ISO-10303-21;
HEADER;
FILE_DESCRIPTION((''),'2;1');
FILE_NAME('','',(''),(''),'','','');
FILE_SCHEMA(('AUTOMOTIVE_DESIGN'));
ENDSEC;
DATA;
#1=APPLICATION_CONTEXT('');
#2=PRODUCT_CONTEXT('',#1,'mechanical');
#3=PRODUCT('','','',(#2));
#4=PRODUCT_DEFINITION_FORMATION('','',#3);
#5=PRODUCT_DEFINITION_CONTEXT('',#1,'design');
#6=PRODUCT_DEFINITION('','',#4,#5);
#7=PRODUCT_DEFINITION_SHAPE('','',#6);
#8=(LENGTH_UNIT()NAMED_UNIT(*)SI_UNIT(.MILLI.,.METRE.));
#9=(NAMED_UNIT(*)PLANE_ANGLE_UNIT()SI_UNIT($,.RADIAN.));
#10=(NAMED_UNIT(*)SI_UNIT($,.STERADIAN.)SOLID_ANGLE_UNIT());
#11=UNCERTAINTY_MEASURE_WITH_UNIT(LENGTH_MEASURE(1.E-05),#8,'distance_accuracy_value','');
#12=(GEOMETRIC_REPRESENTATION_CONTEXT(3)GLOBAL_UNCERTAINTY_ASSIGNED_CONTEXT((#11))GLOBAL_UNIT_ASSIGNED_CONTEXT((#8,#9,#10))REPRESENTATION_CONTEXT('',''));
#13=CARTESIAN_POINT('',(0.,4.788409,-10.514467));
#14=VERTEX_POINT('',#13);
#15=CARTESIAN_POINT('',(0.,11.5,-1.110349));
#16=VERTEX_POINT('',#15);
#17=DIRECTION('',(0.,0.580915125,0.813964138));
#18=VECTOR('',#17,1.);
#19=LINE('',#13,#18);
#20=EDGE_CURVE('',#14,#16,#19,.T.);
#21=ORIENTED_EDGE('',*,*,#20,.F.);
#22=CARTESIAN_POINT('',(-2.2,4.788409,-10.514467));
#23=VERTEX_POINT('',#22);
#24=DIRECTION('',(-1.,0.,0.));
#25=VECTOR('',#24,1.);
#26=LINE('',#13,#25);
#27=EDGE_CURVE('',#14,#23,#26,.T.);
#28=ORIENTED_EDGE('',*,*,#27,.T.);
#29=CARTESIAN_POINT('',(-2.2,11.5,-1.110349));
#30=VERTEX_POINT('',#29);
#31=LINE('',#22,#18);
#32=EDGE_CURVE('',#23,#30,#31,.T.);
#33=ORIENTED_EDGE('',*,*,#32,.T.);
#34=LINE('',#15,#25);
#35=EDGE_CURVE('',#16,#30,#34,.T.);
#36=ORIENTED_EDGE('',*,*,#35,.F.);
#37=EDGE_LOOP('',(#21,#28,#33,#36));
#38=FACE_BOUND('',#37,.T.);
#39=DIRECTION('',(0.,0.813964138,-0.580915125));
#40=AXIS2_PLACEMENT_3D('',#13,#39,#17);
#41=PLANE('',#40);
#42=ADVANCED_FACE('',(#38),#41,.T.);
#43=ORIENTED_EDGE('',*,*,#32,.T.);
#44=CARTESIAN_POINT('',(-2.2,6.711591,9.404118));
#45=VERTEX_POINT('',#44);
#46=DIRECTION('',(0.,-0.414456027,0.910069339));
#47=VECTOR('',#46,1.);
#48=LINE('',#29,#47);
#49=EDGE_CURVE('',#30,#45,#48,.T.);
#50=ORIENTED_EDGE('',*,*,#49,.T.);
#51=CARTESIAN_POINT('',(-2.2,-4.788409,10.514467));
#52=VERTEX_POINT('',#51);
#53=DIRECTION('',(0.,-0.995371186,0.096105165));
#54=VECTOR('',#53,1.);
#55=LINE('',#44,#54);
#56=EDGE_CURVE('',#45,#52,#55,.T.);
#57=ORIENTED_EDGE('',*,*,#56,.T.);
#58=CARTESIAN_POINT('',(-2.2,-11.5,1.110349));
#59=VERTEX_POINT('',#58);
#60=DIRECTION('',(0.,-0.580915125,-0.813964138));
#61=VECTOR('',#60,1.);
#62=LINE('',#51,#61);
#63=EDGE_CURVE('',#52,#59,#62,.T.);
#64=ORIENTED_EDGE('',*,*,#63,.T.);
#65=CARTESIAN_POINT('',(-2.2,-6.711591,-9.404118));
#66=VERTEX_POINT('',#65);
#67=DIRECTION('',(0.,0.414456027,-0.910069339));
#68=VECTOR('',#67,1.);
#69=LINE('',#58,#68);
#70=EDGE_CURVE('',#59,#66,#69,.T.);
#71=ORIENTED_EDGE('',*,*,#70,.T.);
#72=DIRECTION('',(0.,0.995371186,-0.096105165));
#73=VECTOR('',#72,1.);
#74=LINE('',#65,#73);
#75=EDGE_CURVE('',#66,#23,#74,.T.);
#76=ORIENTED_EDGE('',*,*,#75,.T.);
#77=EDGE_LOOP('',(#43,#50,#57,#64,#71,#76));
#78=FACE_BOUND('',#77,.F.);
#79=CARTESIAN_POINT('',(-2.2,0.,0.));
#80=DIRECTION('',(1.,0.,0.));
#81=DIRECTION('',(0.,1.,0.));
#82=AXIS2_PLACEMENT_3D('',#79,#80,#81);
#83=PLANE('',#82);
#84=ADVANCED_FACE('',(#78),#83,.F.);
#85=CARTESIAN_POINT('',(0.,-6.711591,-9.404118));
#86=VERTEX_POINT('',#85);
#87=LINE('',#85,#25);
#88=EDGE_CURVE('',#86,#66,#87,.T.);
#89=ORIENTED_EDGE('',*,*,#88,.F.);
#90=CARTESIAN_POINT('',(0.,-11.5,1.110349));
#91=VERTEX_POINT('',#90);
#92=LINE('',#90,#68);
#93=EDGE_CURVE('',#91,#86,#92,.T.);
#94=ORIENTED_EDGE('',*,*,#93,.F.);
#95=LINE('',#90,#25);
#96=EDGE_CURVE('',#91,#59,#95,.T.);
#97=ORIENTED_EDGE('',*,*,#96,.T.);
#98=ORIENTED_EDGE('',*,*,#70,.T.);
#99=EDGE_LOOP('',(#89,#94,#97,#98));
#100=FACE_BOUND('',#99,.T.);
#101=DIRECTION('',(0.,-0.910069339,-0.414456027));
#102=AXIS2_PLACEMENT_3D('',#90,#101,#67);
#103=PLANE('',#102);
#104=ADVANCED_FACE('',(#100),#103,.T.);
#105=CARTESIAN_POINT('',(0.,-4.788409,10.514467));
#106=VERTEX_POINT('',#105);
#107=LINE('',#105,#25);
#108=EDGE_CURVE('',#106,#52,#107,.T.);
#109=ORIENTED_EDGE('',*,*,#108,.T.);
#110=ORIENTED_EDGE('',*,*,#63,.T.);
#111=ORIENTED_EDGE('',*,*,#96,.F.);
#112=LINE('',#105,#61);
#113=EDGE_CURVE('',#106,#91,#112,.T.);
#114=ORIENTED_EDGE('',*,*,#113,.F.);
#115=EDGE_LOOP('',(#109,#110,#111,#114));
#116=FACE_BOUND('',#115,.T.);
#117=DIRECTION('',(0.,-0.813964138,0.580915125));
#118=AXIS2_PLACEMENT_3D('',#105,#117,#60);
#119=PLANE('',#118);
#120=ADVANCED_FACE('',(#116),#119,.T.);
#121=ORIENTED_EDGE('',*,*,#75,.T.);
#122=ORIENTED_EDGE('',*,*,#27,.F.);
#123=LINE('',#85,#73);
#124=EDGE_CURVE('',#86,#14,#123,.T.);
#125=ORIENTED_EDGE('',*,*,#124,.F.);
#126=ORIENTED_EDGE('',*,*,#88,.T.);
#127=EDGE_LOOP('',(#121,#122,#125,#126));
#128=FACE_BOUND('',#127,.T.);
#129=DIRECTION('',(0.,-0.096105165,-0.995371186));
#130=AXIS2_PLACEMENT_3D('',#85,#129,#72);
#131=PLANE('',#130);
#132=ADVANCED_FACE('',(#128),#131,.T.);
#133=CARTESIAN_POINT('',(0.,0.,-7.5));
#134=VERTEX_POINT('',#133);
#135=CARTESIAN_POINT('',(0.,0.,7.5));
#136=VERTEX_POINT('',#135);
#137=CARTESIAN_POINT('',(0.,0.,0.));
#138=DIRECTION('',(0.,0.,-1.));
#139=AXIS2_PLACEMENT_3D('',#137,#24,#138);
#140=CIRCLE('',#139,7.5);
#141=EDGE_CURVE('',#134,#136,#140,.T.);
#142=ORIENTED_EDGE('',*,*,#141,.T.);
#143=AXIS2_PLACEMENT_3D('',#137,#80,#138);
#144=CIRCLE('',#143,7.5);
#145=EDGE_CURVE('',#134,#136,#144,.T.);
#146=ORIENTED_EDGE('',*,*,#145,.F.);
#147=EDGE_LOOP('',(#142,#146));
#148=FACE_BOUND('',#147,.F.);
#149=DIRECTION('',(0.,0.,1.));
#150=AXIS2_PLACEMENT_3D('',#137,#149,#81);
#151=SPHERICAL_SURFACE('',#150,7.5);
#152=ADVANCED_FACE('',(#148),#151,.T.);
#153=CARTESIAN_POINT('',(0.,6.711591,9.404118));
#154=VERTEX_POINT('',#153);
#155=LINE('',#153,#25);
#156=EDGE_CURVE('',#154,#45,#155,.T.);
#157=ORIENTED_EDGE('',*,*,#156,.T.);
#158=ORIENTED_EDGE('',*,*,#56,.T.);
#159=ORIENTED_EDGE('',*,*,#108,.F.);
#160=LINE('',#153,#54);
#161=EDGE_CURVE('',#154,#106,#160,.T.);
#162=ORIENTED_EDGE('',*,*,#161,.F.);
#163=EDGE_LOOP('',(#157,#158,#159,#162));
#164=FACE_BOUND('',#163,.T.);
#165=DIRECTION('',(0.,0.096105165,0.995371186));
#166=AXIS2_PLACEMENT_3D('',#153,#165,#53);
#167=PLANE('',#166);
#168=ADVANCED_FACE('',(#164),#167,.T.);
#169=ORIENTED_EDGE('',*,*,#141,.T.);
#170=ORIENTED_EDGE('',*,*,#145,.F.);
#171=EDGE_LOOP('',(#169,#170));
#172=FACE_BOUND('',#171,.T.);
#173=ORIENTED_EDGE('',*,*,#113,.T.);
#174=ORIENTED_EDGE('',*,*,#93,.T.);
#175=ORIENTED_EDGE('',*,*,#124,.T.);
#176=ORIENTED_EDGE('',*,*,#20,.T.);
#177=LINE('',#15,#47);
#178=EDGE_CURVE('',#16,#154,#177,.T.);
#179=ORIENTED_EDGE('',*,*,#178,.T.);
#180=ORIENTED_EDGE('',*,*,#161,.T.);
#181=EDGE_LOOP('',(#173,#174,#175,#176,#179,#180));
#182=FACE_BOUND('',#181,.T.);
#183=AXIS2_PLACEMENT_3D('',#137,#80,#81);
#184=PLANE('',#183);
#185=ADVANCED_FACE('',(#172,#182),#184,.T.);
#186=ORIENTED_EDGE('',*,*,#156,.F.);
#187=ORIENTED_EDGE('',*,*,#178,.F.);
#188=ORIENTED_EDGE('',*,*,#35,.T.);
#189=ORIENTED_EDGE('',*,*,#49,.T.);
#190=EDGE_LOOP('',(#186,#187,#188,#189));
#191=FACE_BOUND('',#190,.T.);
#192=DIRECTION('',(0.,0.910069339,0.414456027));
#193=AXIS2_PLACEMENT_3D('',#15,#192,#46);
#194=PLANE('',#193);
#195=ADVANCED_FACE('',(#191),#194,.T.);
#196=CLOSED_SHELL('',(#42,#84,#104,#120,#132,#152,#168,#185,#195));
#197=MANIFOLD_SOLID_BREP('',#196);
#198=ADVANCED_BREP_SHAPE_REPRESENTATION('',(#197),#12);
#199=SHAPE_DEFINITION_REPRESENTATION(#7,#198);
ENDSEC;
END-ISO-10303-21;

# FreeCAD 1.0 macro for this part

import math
import FreeCAD as App
import Part
import Sketcher


def add_polygon(sketch, points):
    """Adds a closed chain of lines whose ends are joined by coincident constraints."""
    first, n = sketch.GeometryCount, len(points)
    for a, b in zip(points, points[1:] + points[:1]):
        sketch.addGeometry(Part.LineSegment(App.Vector(*a, 0), App.Vector(*b, 0)), False)
    for i in range(n):
        sketch.addConstraint(Sketcher.Constraint("Coincident", first + i, 2, first + (i + 1) % n, 1))

doc = App.newDocument("Part")
body = doc.addObject("PartDesign::Body", "Body")

sketch1 = doc.addObject("Sketcher::SketchObject", "Sketch")
body.addObject(sketch1)
sketch1.AttachmentSupport = (doc.YZ_Plane, [""])
sketch1.MapMode = "FlatFace"
sketch1.addGeometry([
    Part.ArcOfCircle(Part.Circle(App.Vector(0, 0, 0), App.Vector(0, 0, 1), 8), math.radians(-90), math.radians(90)),
    Part.LineSegment(App.Vector(0, 8, 0), App.Vector(0, -8, 0)),
], False)
sketch1.addConstraint([
    Sketcher.Constraint("Coincident", 0, 1, 1, 2),
    Sketcher.Constraint("Coincident", 1, 1, 0, 2),
    Sketcher.Constraint("Vertical", 1),
    Sketcher.Constraint("Coincident", 0, 3, -1, 1),
    Sketcher.Constraint("PointOnObject", 0, 1, -2),
    Sketcher.Constraint("Radius", 0, 7.5),
])
revolution = doc.addObject("PartDesign::Revolution", "Revolution")
body.addObject(revolution)
revolution.Profile = sketch1
revolution.ReferenceAxis = (sketch1, ["V_Axis"])
revolution.Angle = 180
revolution.Reversed = True

sketch2 = doc.addObject("Sketcher::SketchObject", "Sketch001")
body.addObject(sketch2)
sketch2.AttachmentSupport = (doc.YZ_Plane, [""])
sketch2.MapMode = "FlatFace"
add_polygon(sketch2, [(-5, 11), (-12, 1), (-7, -9), (5, -11), (12, -1), (7, 9)])
sketch2.addConstraint([
    Sketcher.Constraint("Symmetric", 0, 2, 3, 2, -1, 1),
    Sketcher.Constraint("Symmetric", 1, 2, 4, 2, -1, 1),
    Sketcher.Constraint("Symmetric", 2, 2, 5, 2, -1, 1),
    Sketcher.Constraint("Equal", 0, 1),
    Sketcher.Constraint("Equal", 1, 2),
    Sketcher.Constraint("DistanceX", 0, 2, 3, 2, 23.0),
    Sketcher.Constraint("DistanceX", 1, 2, 2, 2, 11.5),
    Sketcher.Constraint("DistanceY", 3, 2, 0, 2, 2.220698),
    Sketcher.Constraint("Distance", 0, 11.55348),
])
pad1 = doc.addObject("PartDesign::Pad", "Pad")
body.addObject(pad1)
pad1.Profile = sketch2
pad1.Length = 2.2
pad1.Reversed = True

doc.recompute()
